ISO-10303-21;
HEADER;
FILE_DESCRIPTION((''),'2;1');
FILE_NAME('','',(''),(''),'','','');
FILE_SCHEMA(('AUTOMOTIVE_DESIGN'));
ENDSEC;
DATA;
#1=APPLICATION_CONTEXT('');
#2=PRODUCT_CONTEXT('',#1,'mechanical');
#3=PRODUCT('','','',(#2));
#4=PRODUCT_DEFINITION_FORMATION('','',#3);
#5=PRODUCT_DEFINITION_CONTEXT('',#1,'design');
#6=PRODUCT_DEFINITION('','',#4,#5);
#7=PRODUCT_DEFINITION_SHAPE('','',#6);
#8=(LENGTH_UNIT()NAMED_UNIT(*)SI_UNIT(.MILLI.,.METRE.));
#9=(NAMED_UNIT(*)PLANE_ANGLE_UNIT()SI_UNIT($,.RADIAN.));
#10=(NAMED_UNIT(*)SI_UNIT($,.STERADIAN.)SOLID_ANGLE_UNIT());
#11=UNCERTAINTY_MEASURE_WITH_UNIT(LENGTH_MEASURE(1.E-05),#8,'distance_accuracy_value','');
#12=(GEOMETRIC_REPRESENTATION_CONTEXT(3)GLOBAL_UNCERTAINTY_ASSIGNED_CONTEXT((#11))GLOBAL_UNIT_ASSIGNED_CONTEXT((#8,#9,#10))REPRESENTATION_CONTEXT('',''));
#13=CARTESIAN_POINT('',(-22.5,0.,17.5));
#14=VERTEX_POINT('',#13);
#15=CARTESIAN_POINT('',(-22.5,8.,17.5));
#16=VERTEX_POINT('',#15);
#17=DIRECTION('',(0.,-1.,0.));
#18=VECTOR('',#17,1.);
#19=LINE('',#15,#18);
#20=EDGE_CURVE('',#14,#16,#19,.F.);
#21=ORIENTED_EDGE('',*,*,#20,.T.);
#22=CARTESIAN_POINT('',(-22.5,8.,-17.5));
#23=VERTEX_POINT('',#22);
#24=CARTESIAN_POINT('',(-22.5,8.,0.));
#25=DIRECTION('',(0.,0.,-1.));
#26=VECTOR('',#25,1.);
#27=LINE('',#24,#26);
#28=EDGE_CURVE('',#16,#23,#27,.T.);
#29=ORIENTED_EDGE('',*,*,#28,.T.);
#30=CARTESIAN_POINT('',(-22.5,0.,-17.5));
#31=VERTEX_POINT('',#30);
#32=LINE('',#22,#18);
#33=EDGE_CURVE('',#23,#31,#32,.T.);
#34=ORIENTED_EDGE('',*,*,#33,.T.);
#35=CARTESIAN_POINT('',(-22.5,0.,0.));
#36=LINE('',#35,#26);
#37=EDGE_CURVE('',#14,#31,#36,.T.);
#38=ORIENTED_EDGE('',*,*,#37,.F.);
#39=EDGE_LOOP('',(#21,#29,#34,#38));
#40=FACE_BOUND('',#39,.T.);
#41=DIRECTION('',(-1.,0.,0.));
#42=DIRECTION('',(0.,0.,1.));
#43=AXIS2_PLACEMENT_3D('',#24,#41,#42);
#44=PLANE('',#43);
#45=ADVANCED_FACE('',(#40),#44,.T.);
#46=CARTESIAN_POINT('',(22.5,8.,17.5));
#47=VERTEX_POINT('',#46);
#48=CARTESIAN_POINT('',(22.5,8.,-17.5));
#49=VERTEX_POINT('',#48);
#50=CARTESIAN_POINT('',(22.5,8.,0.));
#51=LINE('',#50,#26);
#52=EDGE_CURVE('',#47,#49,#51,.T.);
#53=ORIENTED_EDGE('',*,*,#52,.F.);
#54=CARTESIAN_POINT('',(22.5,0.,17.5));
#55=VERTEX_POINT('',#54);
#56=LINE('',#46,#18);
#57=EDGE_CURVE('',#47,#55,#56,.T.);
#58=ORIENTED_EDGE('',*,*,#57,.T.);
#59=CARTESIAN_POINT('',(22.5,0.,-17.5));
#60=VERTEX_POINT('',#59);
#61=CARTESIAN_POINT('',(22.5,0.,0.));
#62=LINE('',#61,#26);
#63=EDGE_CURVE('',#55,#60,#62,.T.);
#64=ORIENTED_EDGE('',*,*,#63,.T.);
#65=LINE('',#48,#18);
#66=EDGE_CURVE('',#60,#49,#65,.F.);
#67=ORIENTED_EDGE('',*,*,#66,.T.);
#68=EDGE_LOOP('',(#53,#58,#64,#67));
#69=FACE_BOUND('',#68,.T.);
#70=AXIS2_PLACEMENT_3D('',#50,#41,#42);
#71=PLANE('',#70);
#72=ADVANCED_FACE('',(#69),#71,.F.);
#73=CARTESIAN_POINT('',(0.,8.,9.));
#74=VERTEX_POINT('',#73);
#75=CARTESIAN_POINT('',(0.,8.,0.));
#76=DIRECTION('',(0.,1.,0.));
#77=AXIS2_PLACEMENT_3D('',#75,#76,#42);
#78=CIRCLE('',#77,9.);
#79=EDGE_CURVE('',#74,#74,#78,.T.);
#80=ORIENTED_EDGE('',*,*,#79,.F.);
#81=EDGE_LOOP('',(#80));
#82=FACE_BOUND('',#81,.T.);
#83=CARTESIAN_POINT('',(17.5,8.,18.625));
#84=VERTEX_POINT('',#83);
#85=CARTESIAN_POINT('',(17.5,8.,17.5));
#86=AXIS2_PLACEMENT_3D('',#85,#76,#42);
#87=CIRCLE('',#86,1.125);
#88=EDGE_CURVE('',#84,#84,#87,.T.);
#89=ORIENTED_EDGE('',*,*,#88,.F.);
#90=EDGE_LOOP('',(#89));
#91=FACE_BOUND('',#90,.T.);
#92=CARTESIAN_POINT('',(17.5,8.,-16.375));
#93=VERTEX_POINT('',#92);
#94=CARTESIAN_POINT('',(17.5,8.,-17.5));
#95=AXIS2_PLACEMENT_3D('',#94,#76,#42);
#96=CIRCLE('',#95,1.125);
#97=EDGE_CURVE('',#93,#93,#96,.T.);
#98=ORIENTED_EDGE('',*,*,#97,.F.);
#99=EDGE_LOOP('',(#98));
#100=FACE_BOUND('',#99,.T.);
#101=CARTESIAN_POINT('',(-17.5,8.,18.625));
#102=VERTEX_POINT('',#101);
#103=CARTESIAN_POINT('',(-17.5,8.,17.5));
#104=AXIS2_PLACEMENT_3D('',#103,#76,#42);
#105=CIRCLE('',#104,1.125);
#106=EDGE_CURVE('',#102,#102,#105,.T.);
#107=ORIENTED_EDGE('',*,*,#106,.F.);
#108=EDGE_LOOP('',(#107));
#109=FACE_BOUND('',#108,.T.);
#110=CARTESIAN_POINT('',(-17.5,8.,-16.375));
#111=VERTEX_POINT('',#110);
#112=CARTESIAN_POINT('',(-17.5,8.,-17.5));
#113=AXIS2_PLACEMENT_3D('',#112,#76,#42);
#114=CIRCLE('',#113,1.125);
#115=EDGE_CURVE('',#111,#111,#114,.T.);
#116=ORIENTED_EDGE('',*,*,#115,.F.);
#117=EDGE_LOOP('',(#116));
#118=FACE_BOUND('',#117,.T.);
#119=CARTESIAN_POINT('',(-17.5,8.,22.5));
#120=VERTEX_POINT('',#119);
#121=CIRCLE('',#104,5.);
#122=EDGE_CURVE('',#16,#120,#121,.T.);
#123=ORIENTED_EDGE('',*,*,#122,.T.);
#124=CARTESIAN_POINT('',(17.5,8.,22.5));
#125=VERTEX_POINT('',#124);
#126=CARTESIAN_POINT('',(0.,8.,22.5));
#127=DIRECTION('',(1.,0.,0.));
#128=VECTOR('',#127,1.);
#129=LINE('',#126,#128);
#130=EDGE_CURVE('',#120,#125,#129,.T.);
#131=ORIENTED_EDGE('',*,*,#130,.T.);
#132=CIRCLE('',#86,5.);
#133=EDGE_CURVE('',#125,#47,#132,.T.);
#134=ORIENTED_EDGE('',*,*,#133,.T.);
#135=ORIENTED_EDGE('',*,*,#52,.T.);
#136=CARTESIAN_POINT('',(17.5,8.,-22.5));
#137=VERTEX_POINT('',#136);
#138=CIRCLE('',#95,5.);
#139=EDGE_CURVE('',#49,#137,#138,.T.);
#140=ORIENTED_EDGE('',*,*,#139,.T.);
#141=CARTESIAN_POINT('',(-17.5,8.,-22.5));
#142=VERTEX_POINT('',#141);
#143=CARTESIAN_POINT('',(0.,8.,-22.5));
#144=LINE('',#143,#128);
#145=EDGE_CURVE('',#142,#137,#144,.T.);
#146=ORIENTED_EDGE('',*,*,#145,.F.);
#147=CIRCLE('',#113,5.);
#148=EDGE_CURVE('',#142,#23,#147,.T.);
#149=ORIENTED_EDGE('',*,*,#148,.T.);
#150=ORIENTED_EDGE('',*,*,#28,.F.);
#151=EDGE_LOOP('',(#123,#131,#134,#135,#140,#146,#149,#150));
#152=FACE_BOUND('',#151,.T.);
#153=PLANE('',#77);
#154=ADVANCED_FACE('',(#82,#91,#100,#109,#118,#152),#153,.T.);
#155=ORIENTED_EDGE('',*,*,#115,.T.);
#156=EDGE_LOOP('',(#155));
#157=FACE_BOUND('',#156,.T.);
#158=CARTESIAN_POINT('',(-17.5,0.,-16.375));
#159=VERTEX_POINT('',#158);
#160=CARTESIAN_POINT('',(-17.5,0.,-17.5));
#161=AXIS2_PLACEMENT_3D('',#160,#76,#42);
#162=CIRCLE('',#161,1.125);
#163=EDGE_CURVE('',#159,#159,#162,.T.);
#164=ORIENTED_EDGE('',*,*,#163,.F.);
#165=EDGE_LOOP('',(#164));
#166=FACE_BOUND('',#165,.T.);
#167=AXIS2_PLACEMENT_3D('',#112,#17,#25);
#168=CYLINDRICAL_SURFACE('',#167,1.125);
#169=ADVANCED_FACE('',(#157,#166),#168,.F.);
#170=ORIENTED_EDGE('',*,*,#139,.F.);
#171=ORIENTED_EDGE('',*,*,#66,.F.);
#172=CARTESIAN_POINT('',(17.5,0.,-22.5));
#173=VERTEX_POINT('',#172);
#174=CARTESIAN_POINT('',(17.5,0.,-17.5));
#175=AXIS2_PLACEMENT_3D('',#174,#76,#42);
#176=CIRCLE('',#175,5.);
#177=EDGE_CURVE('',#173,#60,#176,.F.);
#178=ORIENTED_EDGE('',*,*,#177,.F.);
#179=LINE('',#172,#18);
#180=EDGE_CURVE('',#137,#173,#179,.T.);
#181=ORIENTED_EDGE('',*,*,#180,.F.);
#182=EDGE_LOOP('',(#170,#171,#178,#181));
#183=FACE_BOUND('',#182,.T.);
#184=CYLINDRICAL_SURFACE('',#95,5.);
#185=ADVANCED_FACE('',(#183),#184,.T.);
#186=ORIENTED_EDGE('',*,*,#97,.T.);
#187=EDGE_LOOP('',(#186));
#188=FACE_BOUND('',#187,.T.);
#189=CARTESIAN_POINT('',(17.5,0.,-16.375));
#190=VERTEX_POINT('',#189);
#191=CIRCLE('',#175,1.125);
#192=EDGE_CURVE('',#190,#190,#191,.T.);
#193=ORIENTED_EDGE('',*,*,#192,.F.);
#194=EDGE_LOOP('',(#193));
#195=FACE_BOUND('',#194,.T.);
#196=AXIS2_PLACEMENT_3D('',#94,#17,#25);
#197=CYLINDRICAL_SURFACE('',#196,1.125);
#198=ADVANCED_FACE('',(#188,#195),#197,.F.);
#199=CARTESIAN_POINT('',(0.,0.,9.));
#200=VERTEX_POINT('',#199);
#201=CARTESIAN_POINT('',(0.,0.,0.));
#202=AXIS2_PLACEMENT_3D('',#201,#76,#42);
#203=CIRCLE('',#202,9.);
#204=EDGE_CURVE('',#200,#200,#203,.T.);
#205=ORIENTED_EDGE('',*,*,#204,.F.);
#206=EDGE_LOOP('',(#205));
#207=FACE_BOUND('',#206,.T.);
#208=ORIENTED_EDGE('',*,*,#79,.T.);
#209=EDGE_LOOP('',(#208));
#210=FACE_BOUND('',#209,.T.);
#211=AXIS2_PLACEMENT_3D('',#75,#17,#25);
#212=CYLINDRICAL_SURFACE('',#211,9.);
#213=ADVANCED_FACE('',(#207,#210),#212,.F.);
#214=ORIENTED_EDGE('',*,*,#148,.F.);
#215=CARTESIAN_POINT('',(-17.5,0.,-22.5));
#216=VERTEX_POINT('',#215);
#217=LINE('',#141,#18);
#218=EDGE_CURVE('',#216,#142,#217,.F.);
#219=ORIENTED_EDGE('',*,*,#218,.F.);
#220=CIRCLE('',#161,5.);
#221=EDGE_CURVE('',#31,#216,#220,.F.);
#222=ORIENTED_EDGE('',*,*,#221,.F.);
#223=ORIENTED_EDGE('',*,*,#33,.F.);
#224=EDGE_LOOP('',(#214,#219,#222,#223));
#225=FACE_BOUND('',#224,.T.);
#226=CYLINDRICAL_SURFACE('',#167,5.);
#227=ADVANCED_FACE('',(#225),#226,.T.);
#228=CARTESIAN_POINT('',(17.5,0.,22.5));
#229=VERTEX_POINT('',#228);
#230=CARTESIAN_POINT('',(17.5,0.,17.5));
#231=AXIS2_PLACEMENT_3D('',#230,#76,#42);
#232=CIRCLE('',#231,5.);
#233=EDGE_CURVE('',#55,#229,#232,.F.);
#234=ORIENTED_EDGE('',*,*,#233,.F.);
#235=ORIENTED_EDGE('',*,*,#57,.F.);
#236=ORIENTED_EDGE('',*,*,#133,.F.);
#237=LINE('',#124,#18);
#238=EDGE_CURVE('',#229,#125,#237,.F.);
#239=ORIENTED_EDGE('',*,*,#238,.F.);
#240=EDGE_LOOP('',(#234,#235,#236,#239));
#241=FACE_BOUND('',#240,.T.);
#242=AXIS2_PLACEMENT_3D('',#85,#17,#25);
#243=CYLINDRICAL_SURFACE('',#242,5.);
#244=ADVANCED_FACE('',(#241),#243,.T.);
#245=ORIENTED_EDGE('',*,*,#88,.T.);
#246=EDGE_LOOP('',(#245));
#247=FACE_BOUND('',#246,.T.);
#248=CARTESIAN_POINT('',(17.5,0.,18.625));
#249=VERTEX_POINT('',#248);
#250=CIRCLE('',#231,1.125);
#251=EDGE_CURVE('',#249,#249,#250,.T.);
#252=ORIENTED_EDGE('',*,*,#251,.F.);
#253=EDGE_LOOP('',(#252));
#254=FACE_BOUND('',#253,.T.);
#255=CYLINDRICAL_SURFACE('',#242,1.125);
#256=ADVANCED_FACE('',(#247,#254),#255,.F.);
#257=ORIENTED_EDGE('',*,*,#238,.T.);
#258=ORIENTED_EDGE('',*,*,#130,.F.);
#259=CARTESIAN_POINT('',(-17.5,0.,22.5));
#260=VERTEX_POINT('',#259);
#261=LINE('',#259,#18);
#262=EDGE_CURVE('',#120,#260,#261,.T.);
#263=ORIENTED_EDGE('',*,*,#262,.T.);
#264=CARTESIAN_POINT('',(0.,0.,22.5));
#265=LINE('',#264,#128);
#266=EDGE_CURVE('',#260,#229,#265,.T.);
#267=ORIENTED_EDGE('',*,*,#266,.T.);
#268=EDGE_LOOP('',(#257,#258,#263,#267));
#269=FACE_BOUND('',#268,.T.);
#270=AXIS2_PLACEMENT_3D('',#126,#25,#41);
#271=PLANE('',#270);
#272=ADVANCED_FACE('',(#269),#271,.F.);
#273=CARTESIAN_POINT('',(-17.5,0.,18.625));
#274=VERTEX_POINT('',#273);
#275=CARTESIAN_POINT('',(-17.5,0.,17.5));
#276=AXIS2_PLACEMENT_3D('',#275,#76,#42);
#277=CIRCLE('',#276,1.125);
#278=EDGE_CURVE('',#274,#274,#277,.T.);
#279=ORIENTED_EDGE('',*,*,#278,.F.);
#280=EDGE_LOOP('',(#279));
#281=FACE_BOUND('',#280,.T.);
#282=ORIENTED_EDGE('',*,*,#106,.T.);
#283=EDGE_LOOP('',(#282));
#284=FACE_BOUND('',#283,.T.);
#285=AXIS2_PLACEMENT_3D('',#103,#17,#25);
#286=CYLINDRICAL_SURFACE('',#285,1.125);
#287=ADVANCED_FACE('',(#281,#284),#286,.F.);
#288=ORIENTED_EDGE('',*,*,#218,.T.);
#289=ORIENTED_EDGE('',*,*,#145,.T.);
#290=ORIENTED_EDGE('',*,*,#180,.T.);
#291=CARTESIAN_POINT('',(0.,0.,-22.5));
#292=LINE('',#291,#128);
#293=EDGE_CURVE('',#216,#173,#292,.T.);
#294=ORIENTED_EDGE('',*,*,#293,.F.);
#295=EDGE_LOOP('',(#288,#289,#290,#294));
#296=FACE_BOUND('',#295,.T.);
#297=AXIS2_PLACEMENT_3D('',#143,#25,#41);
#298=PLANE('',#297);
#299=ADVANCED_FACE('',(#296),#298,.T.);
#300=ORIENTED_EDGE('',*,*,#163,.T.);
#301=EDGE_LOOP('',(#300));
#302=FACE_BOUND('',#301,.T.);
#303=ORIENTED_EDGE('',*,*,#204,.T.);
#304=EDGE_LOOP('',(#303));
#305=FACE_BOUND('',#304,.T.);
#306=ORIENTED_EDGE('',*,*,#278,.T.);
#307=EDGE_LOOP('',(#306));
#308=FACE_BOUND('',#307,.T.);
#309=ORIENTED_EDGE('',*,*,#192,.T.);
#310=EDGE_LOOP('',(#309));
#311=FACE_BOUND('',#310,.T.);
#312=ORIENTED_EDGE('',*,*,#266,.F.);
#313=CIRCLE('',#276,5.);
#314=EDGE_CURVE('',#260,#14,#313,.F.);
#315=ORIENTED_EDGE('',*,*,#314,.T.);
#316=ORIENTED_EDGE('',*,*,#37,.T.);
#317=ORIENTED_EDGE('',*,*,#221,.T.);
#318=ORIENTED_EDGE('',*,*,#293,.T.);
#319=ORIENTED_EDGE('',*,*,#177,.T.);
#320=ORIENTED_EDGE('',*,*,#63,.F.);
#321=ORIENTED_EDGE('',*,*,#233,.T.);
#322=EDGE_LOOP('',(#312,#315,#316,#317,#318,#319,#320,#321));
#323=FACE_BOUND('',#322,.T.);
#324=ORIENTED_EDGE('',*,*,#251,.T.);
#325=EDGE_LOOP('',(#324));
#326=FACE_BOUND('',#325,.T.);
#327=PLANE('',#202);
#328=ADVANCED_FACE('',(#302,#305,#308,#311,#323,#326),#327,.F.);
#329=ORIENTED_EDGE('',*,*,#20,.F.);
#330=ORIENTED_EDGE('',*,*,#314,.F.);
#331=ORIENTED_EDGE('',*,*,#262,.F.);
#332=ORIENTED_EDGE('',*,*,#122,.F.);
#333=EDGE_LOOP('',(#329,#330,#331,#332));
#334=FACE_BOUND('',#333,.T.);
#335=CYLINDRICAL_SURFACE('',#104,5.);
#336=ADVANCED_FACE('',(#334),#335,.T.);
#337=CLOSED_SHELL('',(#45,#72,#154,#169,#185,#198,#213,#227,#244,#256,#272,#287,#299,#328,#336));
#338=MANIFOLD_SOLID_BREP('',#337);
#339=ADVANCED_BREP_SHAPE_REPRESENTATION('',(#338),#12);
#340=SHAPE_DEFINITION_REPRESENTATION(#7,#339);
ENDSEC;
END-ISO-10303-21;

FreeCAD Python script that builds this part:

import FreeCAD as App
import Part
import Sketcher
from FreeCAD import Vector
Q = App.Units.Quantity


def edges_at(feature, points):
    """Names of the edges that pass closest to the given points."""
    edges = feature.Shape.Edges
    near = lambda p: min(range(len(edges)), key=lambda i: edges[i].distToShape(Part.Vertex(*p))[0])
    return sorted({f"Edge{near(p) + 1}" for p in points})


def add_polygon(sketch, points):
    """Adds a closed chain of lines whose ends are joined by coincident constraints."""
    first, n = sketch.GeometryCount, len(points)
    for a, b in zip(points, points[1:] + points[:1]):
        sketch.addGeometry(Part.LineSegment(App.Vector(*a, 0), App.Vector(*b, 0)), False)
    for i in range(n):
        sketch.addConstraint(Sketcher.Constraint("Coincident", first + i, 2, first + (i + 1) % n, 1))

doc = App.newDocument("Part")
params = doc.addObject("Spreadsheet::Sheet", "Params")
for row, (alias, value) in enumerate([
    ("sketch1_diameter", "18 mm"),
    ("sketch1_diameter2", "2.25 mm"),
    ("sketch1_width", "45 mm"),
    ("pad1_length", "8 mm"),
    ("fillet_radius", "5 mm"),
], start=1):
    params.set(f"A{row}", alias)
    params.set(f"B{row}", "=" + value)
    params.setAlias(f"B{row}", alias)

body = doc.addObject("PartDesign::Body", "Body")

sketch1 = body.newObject("Sketcher::SketchObject", "Sketch")
sketch1.AttachmentSupport = (doc.getObject("XZ_Plane"), [""])
sketch1.MapMode = "FlatFace"
add_polygon(sketch1, [(-22.5, -22.5), (-22.5, 22.5), (22.5, 22.5), (22.5, -22.5)])
sketch1.addGeometry(Part.Circle(Vector(-17.5, 17.5, 0), Vector(0, 0, 1), 1.125), False)
sketch1.addGeometry(Part.Circle(Vector(17.5, 17.5, 0), Vector(0, 0, 1), 1.125), False)
sketch1.addGeometry(Part.Circle(Vector(-17.5, -17.5, 0), Vector(0, 0, 1), 1.125), False)
sketch1.addGeometry(Part.Circle(Vector(0, 0, 0), Vector(0, 0, 1), 9), False)
sketch1.addGeometry(Part.Circle(Vector(17.5, -17.5, 0), Vector(0, 0, 1), 1.125), False)
sketch1.addConstraint([
    Sketcher.Constraint("Vertical", 0),
    Sketcher.Constraint("Horizontal", 1),
    Sketcher.Constraint("Vertical", 2),
    Sketcher.Constraint("Horizontal", 3),
    Sketcher.Constraint("Coincident", 7, 3, -1, 1),
    Sketcher.Constraint("Equal", 4, 5),
    Sketcher.Constraint("Equal", 5, 6),
    Sketcher.Constraint("Equal", 6, 8),
    Sketcher.Constraint("Symmetric", 5, 3, 6, 3, -1, 1),
    Sketcher.Constraint("Symmetric", 4, 3, 8, 3, -1, 1),
    Sketcher.Constraint("Symmetric", 0, 2, 2, 2, -1, 1),
    Sketcher.Constraint("Symmetric", 4, 3, 5, 3, -2),
    Sketcher.Constraint("Equal", 3, 0),
    Sketcher.Constraint("Diameter", 7, Q("18 mm")),
    Sketcher.Constraint("Diameter", 4, Q("2.25 mm")),
    Sketcher.Constraint("DistanceX", 1, 1, 1, 2, Q("45 mm")),
    Sketcher.Constraint("DistanceX", 4, 3, 5, 3, Q("35 mm")),
    Sketcher.Constraint("DistanceY", 6, 3, 4, 3, Q("35 mm")),
])
sketch1.setExpression("Constraints[17]", "Params.sketch1_diameter")
sketch1.setExpression("Constraints[18]", "Params.sketch1_diameter2")
sketch1.setExpression("Constraints[19]", "Params.sketch1_width")
pad1 = body.newObject("PartDesign::Pad", "Pad")
pad1.Profile = sketch1
pad1.setExpression("Length", "Params.pad1_length")
pad1.Reversed = True
doc.recompute()

fillet = body.newObject("PartDesign::Fillet", "Fillet")
fillet.Base = (pad1, edges_at(pad1, [
    (-22.5, 4, 22.5),
    (-22.5, 4, -22.5),
    (22.5, 4, -22.5),
    (22.5, 4, 22.5),
]))
fillet.setExpression("Radius", "Params.fillet_radius")

doc.recompute()
